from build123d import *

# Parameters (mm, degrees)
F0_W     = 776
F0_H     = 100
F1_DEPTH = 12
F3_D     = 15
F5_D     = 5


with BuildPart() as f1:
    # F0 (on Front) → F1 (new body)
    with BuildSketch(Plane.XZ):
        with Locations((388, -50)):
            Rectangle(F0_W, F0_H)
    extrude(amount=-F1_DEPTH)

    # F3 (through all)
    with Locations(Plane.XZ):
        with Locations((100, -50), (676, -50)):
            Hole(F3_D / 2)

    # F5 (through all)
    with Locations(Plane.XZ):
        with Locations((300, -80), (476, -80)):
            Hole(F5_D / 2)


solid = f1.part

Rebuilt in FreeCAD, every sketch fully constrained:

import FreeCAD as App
import Part
import Sketcher

V = App.Vector

doc = App.newDocument("Part")
body = doc.addObject("PartDesign::Body", "Body")

sketch1 = body.newObject("Sketcher::SketchObject", "Sketch")
sketch1.AttachmentSupport = (doc.getObject("XZ_Plane"), [""])
sketch1.MapMode = "FlatFace"
sketch1.addGeometry(Part.LineSegment(V(0, 0, 0), V(0, -100, 0)), False)
sketch1.addGeometry(Part.LineSegment(V(0, -100, 0), V(776, -100, 0)), False)
sketch1.addGeometry(Part.LineSegment(V(776, -100, 0), V(776, 0, 0)), False)
sketch1.addGeometry(Part.LineSegment(V(776, 0, 0), V(0, 0, 0)), False)
sketch1.addConstraint(Sketcher.Constraint("Coincident", 0, 2, 1, 1))
sketch1.addConstraint(Sketcher.Constraint("Coincident", 1, 2, 2, 1))
sketch1.addConstraint(Sketcher.Constraint("Coincident", 2, 2, 3, 1))
sketch1.addConstraint(Sketcher.Constraint("Coincident", 3, 2, 0, 1))
sketch1.addConstraint(Sketcher.Constraint("Vertical", 0))
sketch1.addConstraint(Sketcher.Constraint("Horizontal", 1))
sketch1.addConstraint(Sketcher.Constraint("Vertical", 2))
sketch1.addConstraint(Sketcher.Constraint("Horizontal", 3))
sketch1.addConstraint(Sketcher.Constraint("Coincident", 3, 2, -1, 1))
sketch1.addConstraint(Sketcher.Constraint("DistanceX", 1, 1, 1, 2, 776.0))
sketch1.addConstraint(Sketcher.Constraint("DistanceY", 0, 2, 0, 1, 100.0))
pad1 = body.newObject("PartDesign::Pad", "Pad")
pad1.Profile = sketch1
pad1.Length = 12
pad1.Reversed = True

sketch2 = body.newObject("Sketcher::SketchObject", "Sketch001")
sketch2.AttachmentSupport = (doc.getObject("XZ_Plane"), [""])
sketch2.MapMode = "FlatFace"
sketch2.addGeometry(Part.Circle(V(100, -50, 0), V(0, 0, 1), 8), False)
sketch2.addGeometry(Part.Circle(V(676, -50, 0), V(0, 0, 1), 8), False)
sketch2.addConstraint(Sketcher.Constraint("Equal", 0, 1))
sketch2.addConstraint(Sketcher.Constraint("Horizontal", 0, 3, 1, 3))
sketch2.addConstraint(Sketcher.Constraint("Diameter", 0, 15.0))
sketch2.addConstraint(Sketcher.Constraint("DistanceX", -1, 1, 0, 3, 100.0))
sketch2.addConstraint(Sketcher.Constraint("DistanceY", 0, 3, -1, 1, 50.0))
sketch2.addConstraint(Sketcher.Constraint("DistanceX", -1, 1, 1, 3, 676.0))
doc.recompute()
hole = body.newObject("PartDesign::Hole", "Hole")
hole.Profile = sketch2
hole.ThreadType = "None"
hole.Diameter = 15
hole.DepthType = "ThroughAll"

sketch3 = body.newObject("Sketcher::SketchObject", "Sketch002")
sketch3.AttachmentSupport = (doc.getObject("XZ_Plane"), [""])
sketch3.MapMode = "FlatFace"
sketch3.addGeometry(Part.Circle(V(300, -80, 0), V(0, 0, 1), 2.5), False)
sketch3.addGeometry(Part.Circle(V(476, -80, 0), V(0, 0, 1), 2.5), False)
sketch3.addConstraint(Sketcher.Constraint("Equal", 0, 1))
sketch3.addConstraint(Sketcher.Constraint("Horizontal", 0, 3, 1, 3))
sketch3.addConstraint(Sketcher.Constraint("Diameter", 0, 5.0))
sketch3.addConstraint(Sketcher.Constraint("DistanceX", -1, 1, 0, 3, 300.0))
sketch3.addConstraint(Sketcher.Constraint("DistanceY", 0, 3, -1, 1, 80.0))
sketch3.addConstraint(Sketcher.Constraint("DistanceX", -1, 1, 1, 3, 476.0))
doc.recompute()
hole2 = body.newObject("PartDesign::Hole", "Hole001")
hole2.Profile = sketch3
hole2.ThreadType = "None"
hole2.Diameter = 5
hole2.DepthType = "ThroughAll"

doc.recompute()
